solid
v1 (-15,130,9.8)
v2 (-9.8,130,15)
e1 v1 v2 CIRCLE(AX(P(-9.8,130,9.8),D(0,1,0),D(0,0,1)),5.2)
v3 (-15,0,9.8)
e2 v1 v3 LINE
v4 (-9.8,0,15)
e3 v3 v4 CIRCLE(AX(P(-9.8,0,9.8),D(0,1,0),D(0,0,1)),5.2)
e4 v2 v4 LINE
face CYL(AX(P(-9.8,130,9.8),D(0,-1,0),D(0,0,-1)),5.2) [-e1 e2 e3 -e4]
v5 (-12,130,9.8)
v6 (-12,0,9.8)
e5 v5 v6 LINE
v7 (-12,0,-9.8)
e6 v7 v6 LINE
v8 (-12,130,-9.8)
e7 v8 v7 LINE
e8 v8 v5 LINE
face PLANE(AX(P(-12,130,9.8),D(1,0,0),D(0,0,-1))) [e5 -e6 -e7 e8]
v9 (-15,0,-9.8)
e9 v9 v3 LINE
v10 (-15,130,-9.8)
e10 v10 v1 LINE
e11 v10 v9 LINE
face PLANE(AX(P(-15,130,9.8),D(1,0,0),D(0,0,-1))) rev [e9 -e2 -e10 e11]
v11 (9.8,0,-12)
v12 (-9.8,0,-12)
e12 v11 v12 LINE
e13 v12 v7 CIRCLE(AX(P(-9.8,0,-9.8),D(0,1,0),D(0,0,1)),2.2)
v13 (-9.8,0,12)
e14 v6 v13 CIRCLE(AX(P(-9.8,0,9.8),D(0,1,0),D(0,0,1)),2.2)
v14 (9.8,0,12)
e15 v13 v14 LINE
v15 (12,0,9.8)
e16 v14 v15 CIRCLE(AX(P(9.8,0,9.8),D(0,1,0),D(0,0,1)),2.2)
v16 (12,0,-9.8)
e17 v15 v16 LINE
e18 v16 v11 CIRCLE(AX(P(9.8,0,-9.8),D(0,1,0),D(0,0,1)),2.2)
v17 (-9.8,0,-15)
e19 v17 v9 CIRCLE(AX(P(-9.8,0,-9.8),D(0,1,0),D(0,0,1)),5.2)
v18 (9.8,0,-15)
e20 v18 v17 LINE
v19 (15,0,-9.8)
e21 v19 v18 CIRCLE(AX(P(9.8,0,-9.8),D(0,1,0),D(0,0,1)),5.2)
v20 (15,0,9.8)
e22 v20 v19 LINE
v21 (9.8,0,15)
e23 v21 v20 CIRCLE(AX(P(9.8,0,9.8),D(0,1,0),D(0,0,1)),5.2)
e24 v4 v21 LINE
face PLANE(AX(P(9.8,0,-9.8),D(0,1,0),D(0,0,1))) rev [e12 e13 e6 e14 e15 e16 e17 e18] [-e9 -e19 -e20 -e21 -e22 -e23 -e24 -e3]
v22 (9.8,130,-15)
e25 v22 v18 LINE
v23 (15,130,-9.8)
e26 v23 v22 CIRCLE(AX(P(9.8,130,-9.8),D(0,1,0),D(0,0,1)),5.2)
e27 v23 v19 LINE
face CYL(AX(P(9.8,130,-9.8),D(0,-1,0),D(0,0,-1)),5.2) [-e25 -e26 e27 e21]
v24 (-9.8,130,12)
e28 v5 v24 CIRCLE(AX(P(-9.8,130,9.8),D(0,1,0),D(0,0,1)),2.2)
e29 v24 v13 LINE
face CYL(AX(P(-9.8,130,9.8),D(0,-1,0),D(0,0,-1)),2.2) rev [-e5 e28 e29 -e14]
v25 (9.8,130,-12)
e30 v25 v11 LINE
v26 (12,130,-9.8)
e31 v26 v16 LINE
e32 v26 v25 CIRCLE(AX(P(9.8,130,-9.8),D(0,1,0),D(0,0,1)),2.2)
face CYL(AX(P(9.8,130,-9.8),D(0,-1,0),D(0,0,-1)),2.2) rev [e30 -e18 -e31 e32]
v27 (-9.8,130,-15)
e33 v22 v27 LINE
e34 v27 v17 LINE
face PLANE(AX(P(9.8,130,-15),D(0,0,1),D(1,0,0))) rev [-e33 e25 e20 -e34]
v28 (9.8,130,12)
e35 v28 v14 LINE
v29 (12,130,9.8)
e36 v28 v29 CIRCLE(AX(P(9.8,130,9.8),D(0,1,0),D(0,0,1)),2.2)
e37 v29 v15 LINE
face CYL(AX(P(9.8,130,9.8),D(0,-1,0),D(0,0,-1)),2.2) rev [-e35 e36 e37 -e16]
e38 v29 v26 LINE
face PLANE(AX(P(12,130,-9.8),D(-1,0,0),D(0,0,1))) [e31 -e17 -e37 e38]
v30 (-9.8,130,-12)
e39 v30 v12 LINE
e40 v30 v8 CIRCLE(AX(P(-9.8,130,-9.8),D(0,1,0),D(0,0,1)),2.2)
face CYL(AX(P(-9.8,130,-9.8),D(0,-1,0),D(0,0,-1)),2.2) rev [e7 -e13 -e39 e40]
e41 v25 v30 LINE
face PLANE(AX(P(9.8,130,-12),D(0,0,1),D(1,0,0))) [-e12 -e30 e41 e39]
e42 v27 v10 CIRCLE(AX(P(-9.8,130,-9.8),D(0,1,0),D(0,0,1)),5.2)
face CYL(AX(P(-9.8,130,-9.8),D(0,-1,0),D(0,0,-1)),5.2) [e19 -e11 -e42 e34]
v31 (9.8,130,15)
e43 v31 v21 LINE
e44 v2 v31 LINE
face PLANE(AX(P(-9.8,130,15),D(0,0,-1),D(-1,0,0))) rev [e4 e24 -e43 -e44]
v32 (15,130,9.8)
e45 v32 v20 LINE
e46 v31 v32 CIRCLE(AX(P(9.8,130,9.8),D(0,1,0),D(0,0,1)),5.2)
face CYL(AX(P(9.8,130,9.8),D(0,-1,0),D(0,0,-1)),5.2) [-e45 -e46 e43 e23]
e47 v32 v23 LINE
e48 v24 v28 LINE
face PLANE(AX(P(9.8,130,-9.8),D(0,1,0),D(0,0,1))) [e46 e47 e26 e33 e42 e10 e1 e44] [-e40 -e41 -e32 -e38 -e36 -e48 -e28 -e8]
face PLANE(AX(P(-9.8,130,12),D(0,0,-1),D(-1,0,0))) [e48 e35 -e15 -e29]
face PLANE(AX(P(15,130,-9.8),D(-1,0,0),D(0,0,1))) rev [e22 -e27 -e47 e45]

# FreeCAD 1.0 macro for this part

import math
import FreeCAD as App
import Part
import Sketcher
from FreeCAD import Vector
Q = App.Units.Quantity

doc = App.newDocument("Part")
params = doc.addObject("Spreadsheet::Sheet", "Params")
for row, (alias, value) in enumerate([
    ("sketch1_radius", "5.2 mm"),
    ("sketch1_radius2", "2.2 mm"),
    ("sketch1_width", "19.6 mm"),
    ("pad1_length", "130 mm"),
], start=1):
    params.set(f"A{row}", alias)
    params.set(f"B{row}", "=" + value)
    params.setAlias(f"B{row}", alias)

body = doc.addObject("PartDesign::Body", "Body")

sketch1 = body.newObject("Sketcher::SketchObject", "Sketch")
sketch1.AttachmentSupport = (doc.getObject("XZ_Plane"), [""])
sketch1.MapMode = "FlatFace"
sketch1.addGeometry([
    Part.LineSegment(Vector(-9.8, 15, 0), Vector(9.8, 15, 0)),
    Part.ArcOfCircle(Part.Circle(Vector(9.8, 9.8, 0), Vector(0, 0, 1), 5.2), math.radians(0), math.radians(90)),
    Part.LineSegment(Vector(15, 9.8, 0), Vector(15, -9.8, 0)),
    Part.ArcOfCircle(Part.Circle(Vector(9.8, -9.8, 0), Vector(0, 0, 1), 5.2), math.radians(-90), math.radians(0)),
    Part.LineSegment(Vector(9.8, -15, 0), Vector(-9.8, -15, 0)),
    Part.ArcOfCircle(Part.Circle(Vector(-9.8, -9.8, 0), Vector(0, 0, 1), 5.2), math.radians(-180), math.radians(-90)),
    Part.LineSegment(Vector(-15, -9.8, 0), Vector(-15, 9.8, 0)),
    Part.ArcOfCircle(Part.Circle(Vector(-9.8, 9.8, 0), Vector(0, 0, 1), 5.2), math.radians(90), math.radians(180)),
    Part.LineSegment(Vector(9.8, 12, 0), Vector(-9.8, 12, 0)),
    Part.ArcOfCircle(Part.Circle(Vector(-9.8, 9.8, 0), Vector(0, 0, 1), 2.2), math.radians(90), math.radians(180)),
    Part.LineSegment(Vector(-12, 9.8, 0), Vector(-12, -9.8, 0)),
    Part.ArcOfCircle(Part.Circle(Vector(-9.8, -9.8, 0), Vector(0, 0, 1), 2.2), math.radians(180), math.radians(270)),
    Part.LineSegment(Vector(-9.8, -12, 0), Vector(9.8, -12, 0)),
    Part.ArcOfCircle(Part.Circle(Vector(9.8, -9.8, 0), Vector(0, 0, 1), 2.2), math.radians(-90), math.radians(0)),
    Part.LineSegment(Vector(12, -9.8, 0), Vector(12, 9.8, 0)),
    Part.ArcOfCircle(Part.Circle(Vector(9.8, 9.8, 0), Vector(0, 0, 1), 2.2), math.radians(0), math.radians(90)),
], False)
sketch1.addConstraint([
    Sketcher.Constraint("Tangent", 0, 2, 1, 2),
    Sketcher.Constraint("Tangent", 1, 1, 2, 1),
    Sketcher.Constraint("Tangent", 2, 2, 3, 2),
    Sketcher.Constraint("Tangent", 3, 1, 4, 1),
    Sketcher.Constraint("Tangent", 4, 2, 5, 2),
    Sketcher.Constraint("Tangent", 5, 1, 6, 1),
    Sketcher.Constraint("Tangent", 6, 2, 7, 2),
    Sketcher.Constraint("Tangent", 7, 1, 0, 1),
    Sketcher.Constraint("Tangent", 8, 2, 9, 1),
    Sketcher.Constraint("Tangent", 9, 2, 10, 1),
    Sketcher.Constraint("Tangent", 10, 2, 11, 1),
    Sketcher.Constraint("Tangent", 11, 2, 12, 1),
    Sketcher.Constraint("Tangent", 12, 2, 13, 1),
    Sketcher.Constraint("Tangent", 13, 2, 14, 1),
    Sketcher.Constraint("Tangent", 14, 2, 15, 1),
    Sketcher.Constraint("Tangent", 15, 2, 8, 1),
    Sketcher.Constraint("Horizontal", 0),
    Sketcher.Constraint("Vertical", 2),
    Sketcher.Constraint("Horizontal", 4),
    Sketcher.Constraint("Vertical", 6),
    Sketcher.Constraint("Horizontal", 8),
    Sketcher.Constraint("Vertical", 10),
    Sketcher.Constraint("Horizontal", 12),
    Sketcher.Constraint("Vertical", 14),
    Sketcher.Constraint("Coincident", 9, 3, 7, 3),
    Sketcher.Constraint("Coincident", 11, 3, 5, 3),
    Sketcher.Constraint("Coincident", 13, 3, 3, 3),
    Sketcher.Constraint("Equal", 1, 3),
    Sketcher.Constraint("Equal", 3, 5),
    Sketcher.Constraint("Equal", 5, 7),
    Sketcher.Constraint("Equal", 13, 15),
    Sketcher.Constraint("Symmetric", 1, 3, 5, 3, -1, 1),
    Sketcher.Constraint("Equal", 12, 2),
    Sketcher.Constraint("Radius", 1, Q("5.2 mm")),
    Sketcher.Constraint("Radius", 9, Q("2.2 mm")),
    Sketcher.Constraint("DistanceX", 0, 1, 0, 2, Q("19.6 mm")),
])
sketch1.setExpression("Constraints[33]", "Params.sketch1_radius")
sketch1.setExpression("Constraints[34]", "Params.sketch1_radius2")
sketch1.setExpression("Constraints[35]", "Params.sketch1_width")
pad1 = body.newObject("PartDesign::Pad", "Pad")
pad1.Profile = sketch1
pad1.setExpression("Length", "Params.pad1_length")
pad1.Reversed = True

doc.recompute()
